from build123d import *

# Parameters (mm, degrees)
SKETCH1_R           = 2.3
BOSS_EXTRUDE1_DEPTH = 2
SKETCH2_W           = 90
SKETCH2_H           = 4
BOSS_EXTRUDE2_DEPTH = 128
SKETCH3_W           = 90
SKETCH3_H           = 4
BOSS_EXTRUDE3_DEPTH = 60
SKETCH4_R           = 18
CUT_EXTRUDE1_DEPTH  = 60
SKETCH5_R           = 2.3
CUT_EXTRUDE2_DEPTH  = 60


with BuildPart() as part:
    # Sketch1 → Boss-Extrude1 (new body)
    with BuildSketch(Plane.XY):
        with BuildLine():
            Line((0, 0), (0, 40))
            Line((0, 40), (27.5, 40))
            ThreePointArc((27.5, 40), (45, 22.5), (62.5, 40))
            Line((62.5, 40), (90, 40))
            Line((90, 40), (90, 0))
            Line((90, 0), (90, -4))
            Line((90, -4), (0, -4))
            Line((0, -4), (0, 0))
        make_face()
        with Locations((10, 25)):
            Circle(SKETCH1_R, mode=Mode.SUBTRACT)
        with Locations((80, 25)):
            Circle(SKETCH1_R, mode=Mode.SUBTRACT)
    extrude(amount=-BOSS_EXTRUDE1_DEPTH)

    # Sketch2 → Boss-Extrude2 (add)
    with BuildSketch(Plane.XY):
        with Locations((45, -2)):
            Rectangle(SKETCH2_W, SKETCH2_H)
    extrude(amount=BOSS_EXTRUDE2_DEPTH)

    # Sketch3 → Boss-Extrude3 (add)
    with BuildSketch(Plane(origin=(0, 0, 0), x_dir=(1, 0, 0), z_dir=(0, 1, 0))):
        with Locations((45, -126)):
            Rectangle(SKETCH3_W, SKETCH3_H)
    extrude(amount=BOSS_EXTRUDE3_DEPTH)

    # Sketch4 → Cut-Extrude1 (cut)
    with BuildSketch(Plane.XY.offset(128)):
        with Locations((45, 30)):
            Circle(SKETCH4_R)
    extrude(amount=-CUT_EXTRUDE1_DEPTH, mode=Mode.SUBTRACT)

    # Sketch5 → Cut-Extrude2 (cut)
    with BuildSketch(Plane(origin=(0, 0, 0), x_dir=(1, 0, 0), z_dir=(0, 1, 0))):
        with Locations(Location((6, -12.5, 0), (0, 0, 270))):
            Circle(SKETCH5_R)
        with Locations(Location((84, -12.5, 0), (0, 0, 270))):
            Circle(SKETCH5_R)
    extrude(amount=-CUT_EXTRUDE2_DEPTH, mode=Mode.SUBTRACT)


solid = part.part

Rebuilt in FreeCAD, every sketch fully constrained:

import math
import FreeCAD as App
import Part
import Sketcher
from FreeCAD import Vector


def add_polygon(sketch, points):
    """Adds a closed chain of lines whose ends are joined by coincident constraints."""
    first, n = sketch.GeometryCount, len(points)
    for a, b in zip(points, points[1:] + points[:1]):
        sketch.addGeometry(Part.LineSegment(App.Vector(*a, 0), App.Vector(*b, 0)), False)
    for i in range(n):
        sketch.addConstraint(Sketcher.Constraint("Coincident", first + i, 2, first + (i + 1) % n, 1))

doc = App.newDocument("Part")
body = doc.addObject("PartDesign::Body", "Body")

# Sketch on XY plane
sketch1 = body.newObject("Sketcher::SketchObject", "Sketch")
sketch1.AttachmentSupport = (doc.getObject("XY_Plane"), [""])
sketch1.MapMode = "FlatFace"
sketch1.addGeometry([
    Part.LineSegment(Vector(27.5, 40, 0), Vector(0, 40, 0)),  # 0
    Part.LineSegment(Vector(0, 40, 0), Vector(0, -4, 0)),  # 1
    Part.LineSegment(Vector(0, -4, 0), Vector(90, -4, 0)),  # 2
    Part.LineSegment(Vector(90, -4, 0), Vector(90, 40, 0)),  # 3
    Part.LineSegment(Vector(90, 40, 0), Vector(62.5, 40, 0)),  # 4
    Part.ArcOfCircle(Part.Circle(Vector(45, 40, 0), Vector(0, 0, 1), 17.5), math.radians(180), math.radians(360)),  # 5
    Part.Circle(Vector(80, 25, 0), Vector(0, 0, 1), 2.3),  # 6
    Part.Circle(Vector(10, 25, 0), Vector(0, 0, 1), 2.3),  # 7
], False)
sketch1.addConstraint([
    Sketcher.Constraint("Coincident", 0, 2, 1, 1),
    Sketcher.Constraint("Coincident", 1, 2, 2, 1),
    Sketcher.Constraint("Coincident", 2, 2, 3, 1),
    Sketcher.Constraint("Coincident", 3, 2, 4, 1),
    Sketcher.Constraint("Coincident", 4, 2, 5, 2),
    Sketcher.Constraint("Coincident", 5, 1, 0, 1),
    Sketcher.Constraint("Horizontal", 0),
    Sketcher.Constraint("Vertical", 1),
    Sketcher.Constraint("Horizontal", 2),
    Sketcher.Constraint("Vertical", 3),
    Sketcher.Constraint("Horizontal", 4),
    Sketcher.Constraint("Equal", 6, 7),
    Sketcher.Constraint("PointOnObject", 0, 2, -2),
    Sketcher.Constraint("Horizontal", 6, 3, 7, 3),
    Sketcher.Constraint("Horizontal", 5, 3, 0, 2),
    Sketcher.Constraint("Horizontal", 0, 2, 3, 2),
    Sketcher.Constraint("Equal", 0, 4),
    Sketcher.Constraint("Diameter", 6, 4.6),
    Sketcher.Constraint("Radius", 5, 17.5),
    Sketcher.Constraint("DistanceX", 2, 1, 2, 2, 90.0),
    Sketcher.Constraint("DistanceY", 1, 2, 1, 1, 44.0),
    Sketcher.Constraint("DistanceY", -1, 1, 5, 3, 40.0),
    Sketcher.Constraint("DistanceX", -1, 1, 6, 3, 80.0),
    Sketcher.Constraint("DistanceY", -1, 1, 6, 3, 25.0),
    Sketcher.Constraint("DistanceX", -1, 1, 7, 3, 10.0),
])
pad1 = body.newObject("PartDesign::Pad", "Pad")
pad1.Profile = sketch1
pad1.Length = 2
pad1.Reversed = True

# Sketch on XY plane
sketch2 = body.newObject("Sketcher::SketchObject", "Sketch001")
sketch2.AttachmentSupport = (doc.getObject("XY_Plane"), [""])
sketch2.MapMode = "FlatFace"
add_polygon(sketch2, [(0, 0), (0, -4), (90, -4), (90, 0)])  # lines 0-3
sketch2.addConstraint([
    Sketcher.Constraint("Vertical", 0),
    Sketcher.Constraint("Horizontal", 1),
    Sketcher.Constraint("Vertical", 2),
    Sketcher.Constraint("Horizontal", 3),
    Sketcher.Constraint("Coincident", 3, 2, -1, 1),
    Sketcher.Constraint("DistanceX", 1, 1, 1, 2, 90.0),
    Sketcher.Constraint("DistanceY", 0, 2, 0, 1, 4.0),
])
pad2 = body.newObject("PartDesign::Pad", "Pad001")
pad2.Profile = sketch2
pad2.Length = 128

# Sketch on XZ plane
sketch3 = body.newObject("Sketcher::SketchObject", "Sketch002")
sketch3.AttachmentSupport = (doc.getObject("XZ_Plane"), [""])
sketch3.MapMode = "FlatFace"
add_polygon(sketch3, [(0, 124), (0, 128), (90, 128), (90, 124)])  # lines 0-3
sketch3.addConstraint([
    Sketcher.Constraint("Vertical", 0),
    Sketcher.Constraint("Horizontal", 1),
    Sketcher.Constraint("Vertical", 2),
    Sketcher.Constraint("Horizontal", 3),
    Sketcher.Constraint("PointOnObject", 0, 2, -2),
    Sketcher.Constraint("DistanceX", 1, 1, 1, 2, 90.0),
    Sketcher.Constraint("DistanceY", 0, 1, 0, 2, 4.0),
    Sketcher.Constraint("DistanceY", -1, 1, 0, 2, 128.0),
])
pad3 = body.newObject("PartDesign::Pad", "Pad002")
pad3.Profile = sketch3
pad3.Length = 60
pad3.Reversed = True

# Sketch on XY plane
sketch4 = body.newObject("Sketcher::SketchObject", "Sketch003")
sketch4.AttachmentSupport = (doc.getObject("XY_Plane"), [""])
sketch4.MapMode = "FlatFace"
sketch4.AttachmentOffset = App.Placement(Vector(0, 0, 128), App.Rotation())
sketch4.addGeometry(Part.Circle(Vector(45, 30, 0), Vector(0, 0, 1), 18), False)
sketch4.addConstraint([
    Sketcher.Constraint("Diameter", 0, 36.0),
    Sketcher.Constraint("DistanceX", -1, 1, 0, 3, 45.0),
    Sketcher.Constraint("DistanceY", -1, 1, 0, 3, 30.0),
])
pocket1 = body.newObject("PartDesign::Pocket", "Pocket")
pocket1.Profile = sketch4
pocket1.Length = 60

# Sketch on XZ plane
sketch5 = body.newObject("Sketcher::SketchObject", "Sketch004")
sketch5.AttachmentSupport = (doc.getObject("XZ_Plane"), [""])
sketch5.MapMode = "FlatFace"
sketch5.addGeometry([
    Part.Circle(Vector(6, 12.5, 0), Vector(0, 0, 1), 2.3),
    Part.Circle(Vector(84, 12.5, 0), Vector(0, 0, 1), 2.3),
], False)
sketch5.addConstraint([
    Sketcher.Constraint("Equal", 0, 1),
    Sketcher.Constraint("Horizontal", 0, 3, 1, 3),
    Sketcher.Constraint("Diameter", 0, 4.6),
    Sketcher.Constraint("DistanceX", -1, 1, 0, 3, 6.0),
    Sketcher.Constraint("DistanceX", -1, 1, 1, 3, 84.0),
    Sketcher.Constraint("DistanceY", -1, 1, 0, 3, 12.5),
])
pocket2 = body.newObject("PartDesign::Pocket", "Pocket001")
pocket2.Profile = sketch5
pocket2.Length = 60
pocket2.Reversed = True

doc.recompute()
